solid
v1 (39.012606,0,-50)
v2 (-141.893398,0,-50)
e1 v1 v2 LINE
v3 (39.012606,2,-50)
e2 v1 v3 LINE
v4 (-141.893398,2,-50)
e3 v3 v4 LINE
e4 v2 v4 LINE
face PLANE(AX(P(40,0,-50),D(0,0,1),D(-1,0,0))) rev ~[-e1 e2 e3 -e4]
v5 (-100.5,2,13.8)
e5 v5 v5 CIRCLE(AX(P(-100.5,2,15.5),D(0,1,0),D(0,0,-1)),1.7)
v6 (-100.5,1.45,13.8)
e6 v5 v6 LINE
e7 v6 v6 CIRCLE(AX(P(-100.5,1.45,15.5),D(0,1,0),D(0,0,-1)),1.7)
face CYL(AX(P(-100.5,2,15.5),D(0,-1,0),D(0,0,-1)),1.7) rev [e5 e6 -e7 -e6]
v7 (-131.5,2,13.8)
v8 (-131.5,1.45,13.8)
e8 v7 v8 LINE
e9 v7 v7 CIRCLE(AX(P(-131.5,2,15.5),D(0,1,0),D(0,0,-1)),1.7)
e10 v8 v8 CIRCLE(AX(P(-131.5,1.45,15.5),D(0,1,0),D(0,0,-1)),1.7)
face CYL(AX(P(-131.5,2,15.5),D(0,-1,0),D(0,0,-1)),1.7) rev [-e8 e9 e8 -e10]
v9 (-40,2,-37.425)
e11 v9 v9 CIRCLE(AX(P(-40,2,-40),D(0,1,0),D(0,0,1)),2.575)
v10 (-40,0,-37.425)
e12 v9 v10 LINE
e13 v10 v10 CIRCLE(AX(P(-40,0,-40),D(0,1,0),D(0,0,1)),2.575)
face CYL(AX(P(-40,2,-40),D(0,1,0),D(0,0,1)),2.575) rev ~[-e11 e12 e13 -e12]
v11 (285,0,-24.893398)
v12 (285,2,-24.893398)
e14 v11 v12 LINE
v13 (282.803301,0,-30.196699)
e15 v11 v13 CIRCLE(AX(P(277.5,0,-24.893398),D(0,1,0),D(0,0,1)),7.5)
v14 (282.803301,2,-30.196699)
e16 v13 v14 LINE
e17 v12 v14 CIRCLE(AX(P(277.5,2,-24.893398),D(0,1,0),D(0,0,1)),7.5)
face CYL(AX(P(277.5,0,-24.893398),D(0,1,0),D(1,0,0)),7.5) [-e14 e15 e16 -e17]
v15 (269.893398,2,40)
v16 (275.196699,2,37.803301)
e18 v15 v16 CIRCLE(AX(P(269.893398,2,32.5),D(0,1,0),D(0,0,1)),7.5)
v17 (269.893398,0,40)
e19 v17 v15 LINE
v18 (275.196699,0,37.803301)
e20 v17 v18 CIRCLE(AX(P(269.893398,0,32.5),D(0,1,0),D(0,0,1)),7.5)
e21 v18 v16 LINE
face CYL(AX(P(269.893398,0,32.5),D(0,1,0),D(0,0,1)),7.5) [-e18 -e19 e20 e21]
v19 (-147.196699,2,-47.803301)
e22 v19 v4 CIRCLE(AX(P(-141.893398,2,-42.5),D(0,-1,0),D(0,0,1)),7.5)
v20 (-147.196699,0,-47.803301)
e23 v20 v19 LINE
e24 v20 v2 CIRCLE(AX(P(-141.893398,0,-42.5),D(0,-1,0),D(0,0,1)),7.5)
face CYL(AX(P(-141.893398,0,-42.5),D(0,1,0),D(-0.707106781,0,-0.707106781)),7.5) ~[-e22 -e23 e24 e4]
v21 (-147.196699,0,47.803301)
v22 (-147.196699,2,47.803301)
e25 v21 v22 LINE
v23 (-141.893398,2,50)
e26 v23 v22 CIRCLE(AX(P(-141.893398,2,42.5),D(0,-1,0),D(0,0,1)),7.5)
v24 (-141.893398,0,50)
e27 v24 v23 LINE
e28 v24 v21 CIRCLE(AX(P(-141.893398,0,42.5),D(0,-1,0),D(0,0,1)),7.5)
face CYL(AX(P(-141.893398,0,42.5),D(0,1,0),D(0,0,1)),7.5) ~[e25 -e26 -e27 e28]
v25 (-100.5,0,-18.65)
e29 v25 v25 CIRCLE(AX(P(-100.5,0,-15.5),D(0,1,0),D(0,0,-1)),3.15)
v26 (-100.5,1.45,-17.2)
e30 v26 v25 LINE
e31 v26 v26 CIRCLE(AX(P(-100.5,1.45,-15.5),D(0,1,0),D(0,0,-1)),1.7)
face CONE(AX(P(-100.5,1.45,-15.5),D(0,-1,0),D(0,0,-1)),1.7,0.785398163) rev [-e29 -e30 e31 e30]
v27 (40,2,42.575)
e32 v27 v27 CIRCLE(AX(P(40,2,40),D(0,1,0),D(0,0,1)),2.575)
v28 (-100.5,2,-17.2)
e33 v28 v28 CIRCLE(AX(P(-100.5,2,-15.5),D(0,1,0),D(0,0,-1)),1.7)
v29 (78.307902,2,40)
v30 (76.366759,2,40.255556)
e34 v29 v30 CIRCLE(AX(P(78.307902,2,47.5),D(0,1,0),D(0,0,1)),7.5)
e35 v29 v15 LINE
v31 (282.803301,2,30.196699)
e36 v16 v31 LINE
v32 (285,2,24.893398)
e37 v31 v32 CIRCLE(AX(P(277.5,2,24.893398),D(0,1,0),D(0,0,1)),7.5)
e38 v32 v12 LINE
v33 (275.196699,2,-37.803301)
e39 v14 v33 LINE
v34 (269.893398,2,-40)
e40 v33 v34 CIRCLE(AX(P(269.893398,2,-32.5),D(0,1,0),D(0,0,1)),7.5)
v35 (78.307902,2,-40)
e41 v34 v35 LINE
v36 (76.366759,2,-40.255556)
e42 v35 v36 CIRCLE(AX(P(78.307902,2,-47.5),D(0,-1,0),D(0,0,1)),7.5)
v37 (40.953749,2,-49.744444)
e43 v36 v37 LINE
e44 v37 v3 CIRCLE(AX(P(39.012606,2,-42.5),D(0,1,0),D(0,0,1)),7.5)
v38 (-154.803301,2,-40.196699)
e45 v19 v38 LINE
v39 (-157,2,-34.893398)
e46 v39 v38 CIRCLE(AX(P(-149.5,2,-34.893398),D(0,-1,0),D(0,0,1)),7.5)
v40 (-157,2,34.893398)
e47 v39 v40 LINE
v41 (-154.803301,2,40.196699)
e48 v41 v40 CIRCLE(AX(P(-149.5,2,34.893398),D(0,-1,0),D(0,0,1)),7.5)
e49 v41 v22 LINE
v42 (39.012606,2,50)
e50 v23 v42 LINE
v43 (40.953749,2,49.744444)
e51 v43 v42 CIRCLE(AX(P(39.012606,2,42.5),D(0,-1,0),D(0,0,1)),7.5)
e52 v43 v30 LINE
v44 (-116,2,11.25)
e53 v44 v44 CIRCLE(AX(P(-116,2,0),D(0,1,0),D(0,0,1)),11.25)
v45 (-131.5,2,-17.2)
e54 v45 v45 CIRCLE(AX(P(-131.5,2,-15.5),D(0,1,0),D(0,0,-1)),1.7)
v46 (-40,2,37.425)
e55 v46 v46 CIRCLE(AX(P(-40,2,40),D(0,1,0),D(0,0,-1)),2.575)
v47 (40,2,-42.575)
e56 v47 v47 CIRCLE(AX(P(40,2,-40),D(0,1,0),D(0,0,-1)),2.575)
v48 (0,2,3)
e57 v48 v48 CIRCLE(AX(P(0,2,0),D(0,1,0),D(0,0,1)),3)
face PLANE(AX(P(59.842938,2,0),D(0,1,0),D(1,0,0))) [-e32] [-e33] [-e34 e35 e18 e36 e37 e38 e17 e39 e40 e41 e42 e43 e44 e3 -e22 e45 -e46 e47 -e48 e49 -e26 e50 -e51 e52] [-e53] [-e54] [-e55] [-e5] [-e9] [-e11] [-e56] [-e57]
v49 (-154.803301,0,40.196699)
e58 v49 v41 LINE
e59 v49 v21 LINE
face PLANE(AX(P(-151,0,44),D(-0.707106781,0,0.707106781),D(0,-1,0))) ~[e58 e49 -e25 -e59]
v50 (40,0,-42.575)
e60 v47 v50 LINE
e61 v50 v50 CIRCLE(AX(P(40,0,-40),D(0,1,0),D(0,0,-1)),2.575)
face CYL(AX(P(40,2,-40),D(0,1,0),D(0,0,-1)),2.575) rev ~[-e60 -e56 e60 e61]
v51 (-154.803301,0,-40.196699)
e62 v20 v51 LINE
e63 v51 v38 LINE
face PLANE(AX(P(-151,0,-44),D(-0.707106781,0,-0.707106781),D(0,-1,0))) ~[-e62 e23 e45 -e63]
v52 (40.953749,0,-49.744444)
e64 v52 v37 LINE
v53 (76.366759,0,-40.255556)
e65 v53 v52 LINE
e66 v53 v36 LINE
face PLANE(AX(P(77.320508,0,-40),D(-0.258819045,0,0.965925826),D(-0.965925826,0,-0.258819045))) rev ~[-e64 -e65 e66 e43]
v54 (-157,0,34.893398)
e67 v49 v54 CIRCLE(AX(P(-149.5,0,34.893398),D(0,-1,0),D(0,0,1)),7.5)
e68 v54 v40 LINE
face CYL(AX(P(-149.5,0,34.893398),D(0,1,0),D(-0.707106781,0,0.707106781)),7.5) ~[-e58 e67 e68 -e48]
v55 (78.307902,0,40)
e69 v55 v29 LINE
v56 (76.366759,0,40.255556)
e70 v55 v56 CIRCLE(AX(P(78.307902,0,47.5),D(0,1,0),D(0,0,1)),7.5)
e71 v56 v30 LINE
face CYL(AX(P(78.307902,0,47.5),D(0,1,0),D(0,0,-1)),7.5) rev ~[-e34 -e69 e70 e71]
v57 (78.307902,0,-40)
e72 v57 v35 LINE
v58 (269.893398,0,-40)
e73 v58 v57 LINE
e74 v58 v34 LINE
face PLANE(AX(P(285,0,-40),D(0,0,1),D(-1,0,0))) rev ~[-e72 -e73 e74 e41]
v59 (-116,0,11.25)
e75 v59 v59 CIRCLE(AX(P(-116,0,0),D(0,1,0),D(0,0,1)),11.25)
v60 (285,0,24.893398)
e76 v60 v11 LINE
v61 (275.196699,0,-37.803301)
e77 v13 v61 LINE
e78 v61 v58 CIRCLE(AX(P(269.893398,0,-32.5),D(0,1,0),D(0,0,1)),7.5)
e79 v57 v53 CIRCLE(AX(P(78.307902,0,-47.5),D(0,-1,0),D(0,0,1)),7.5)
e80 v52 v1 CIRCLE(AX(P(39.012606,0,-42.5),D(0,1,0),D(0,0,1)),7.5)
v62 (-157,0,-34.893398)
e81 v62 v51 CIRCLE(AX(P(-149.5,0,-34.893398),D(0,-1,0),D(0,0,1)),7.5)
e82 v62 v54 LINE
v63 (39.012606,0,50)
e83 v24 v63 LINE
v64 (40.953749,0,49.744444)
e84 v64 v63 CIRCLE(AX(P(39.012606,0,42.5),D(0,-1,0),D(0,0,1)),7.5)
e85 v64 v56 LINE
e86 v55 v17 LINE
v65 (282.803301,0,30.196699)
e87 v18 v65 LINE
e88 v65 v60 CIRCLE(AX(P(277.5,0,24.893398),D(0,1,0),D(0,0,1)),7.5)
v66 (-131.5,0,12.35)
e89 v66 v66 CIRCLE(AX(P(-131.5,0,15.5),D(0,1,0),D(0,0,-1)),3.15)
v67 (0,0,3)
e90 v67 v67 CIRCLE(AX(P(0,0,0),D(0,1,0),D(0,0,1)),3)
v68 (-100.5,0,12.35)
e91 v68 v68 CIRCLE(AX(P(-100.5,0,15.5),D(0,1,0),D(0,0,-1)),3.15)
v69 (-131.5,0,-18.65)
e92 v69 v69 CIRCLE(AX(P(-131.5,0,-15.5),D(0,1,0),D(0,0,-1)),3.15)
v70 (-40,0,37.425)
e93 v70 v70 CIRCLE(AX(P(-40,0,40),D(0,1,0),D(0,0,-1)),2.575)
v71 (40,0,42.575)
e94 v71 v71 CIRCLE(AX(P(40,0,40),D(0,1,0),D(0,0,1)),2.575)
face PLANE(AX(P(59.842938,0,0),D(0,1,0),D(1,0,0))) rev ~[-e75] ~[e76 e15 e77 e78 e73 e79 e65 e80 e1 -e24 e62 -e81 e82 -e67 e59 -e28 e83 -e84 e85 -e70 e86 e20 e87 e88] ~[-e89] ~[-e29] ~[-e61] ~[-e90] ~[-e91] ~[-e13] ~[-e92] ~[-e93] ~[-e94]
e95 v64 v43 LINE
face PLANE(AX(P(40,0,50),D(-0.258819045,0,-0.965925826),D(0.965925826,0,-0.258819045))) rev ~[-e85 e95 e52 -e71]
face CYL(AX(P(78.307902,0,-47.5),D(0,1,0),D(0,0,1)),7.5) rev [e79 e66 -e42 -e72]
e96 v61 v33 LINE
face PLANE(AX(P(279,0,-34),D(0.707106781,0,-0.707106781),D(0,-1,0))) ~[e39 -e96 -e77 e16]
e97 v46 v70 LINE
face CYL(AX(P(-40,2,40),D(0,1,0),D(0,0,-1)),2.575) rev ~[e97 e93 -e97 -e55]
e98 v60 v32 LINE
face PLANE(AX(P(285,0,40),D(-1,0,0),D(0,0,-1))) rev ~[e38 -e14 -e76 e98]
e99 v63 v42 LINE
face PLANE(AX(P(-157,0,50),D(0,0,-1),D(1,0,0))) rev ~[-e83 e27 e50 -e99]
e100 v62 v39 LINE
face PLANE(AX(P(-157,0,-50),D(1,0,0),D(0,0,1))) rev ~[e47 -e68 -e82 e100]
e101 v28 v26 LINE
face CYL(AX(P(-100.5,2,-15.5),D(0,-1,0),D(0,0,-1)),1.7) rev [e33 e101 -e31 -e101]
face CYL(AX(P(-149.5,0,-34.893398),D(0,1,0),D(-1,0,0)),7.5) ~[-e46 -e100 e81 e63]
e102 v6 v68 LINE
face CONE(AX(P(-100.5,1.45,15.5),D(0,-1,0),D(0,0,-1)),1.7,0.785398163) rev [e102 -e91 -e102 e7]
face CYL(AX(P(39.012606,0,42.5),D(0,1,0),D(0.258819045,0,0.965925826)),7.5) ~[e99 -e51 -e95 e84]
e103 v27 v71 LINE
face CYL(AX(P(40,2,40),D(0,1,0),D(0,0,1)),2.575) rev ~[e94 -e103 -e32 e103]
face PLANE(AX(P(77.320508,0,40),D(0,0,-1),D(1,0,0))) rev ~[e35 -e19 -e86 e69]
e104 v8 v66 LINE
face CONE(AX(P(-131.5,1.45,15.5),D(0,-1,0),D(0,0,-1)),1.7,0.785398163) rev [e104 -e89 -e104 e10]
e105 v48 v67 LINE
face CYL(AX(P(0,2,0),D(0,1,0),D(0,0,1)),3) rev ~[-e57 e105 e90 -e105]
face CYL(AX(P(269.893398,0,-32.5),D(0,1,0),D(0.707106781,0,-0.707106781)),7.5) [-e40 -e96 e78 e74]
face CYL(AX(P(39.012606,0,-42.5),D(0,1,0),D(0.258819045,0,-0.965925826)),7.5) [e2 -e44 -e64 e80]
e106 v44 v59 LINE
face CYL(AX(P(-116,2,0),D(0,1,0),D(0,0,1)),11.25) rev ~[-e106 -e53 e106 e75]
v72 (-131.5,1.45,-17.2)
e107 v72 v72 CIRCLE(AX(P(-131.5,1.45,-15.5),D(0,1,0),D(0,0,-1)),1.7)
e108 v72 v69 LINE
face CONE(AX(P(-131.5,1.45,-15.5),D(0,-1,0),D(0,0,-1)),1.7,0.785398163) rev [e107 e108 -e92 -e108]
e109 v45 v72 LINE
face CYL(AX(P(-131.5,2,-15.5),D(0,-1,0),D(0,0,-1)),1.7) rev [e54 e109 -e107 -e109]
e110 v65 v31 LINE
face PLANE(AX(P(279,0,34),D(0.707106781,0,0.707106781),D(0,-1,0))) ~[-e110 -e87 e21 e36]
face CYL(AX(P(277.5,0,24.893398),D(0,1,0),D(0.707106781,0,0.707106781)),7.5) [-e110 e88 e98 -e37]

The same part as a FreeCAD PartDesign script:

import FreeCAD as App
import Part
import Sketcher
from FreeCAD import Vector
Q = App.Units.Quantity


def edges_at(feature, points):
    """Names of the edges that pass closest to the given points."""
    edges = feature.Shape.Edges
    near = lambda p: min(range(len(edges)), key=lambda i: edges[i].distToShape(Part.Vertex(*p))[0])
    return sorted({f"Edge{near(p) + 1}" for p in points})


def add_polygon(sketch, points):
    """Adds a closed chain of lines whose ends are joined by coincident constraints."""
    first, n = sketch.GeometryCount, len(points)
    for a, b in zip(points, points[1:] + points[:1]):
        sketch.addGeometry(Part.LineSegment(App.Vector(*a, 0), App.Vector(*b, 0)), False)
    for i in range(n):
        sketch.addConstraint(Sketcher.Constraint("Coincident", first + i, 2, first + (i + 1) % n, 1))

doc = App.newDocument("Part")
body = doc.addObject("PartDesign::Body", "Body")

# Sketch on XZ plane
sketch1 = body.newObject("Sketcher::SketchObject", "Sketch")
sketch1.AttachmentSupport = (doc.getObject("XZ_Plane"), [""])
sketch1.MapMode = "FlatFace"
add_polygon(sketch1, [(40, 50), (77, 40), (285, 40), (285, -40), (77, -40), (40, -50), (-157, -50), (-157, 50)])  # lines 0-7
sketch1.addConstraint([
    Sketcher.Constraint("Horizontal", 1),
    Sketcher.Constraint("Vertical", 2),
    Sketcher.Constraint("Horizontal", 3),
    Sketcher.Constraint("Horizontal", 5),
    Sketcher.Constraint("Vertical", 6),
    Sketcher.Constraint("Horizontal", 7),
    Sketcher.Constraint("Symmetric", 0, 2, 3, 2, -1),
    Sketcher.Constraint("Symmetric", 4, 2, 7, 2, -1),
    Sketcher.Constraint("DistanceX", 5, 2, 5, 1, 197.0),
    Sketcher.Constraint("DistanceY", 2, 2, 2, 1, 80.0),
    Sketcher.Constraint("DistanceY", 6, 1, 6, 2, 100.0),
    Sketcher.Constraint("Angle", 0, Q("-15 deg")),
    Sketcher.Constraint("DistanceX", -1, 1, 1, 2, 285.0),
    Sketcher.Constraint("DistanceX", -1, 1, 4, 2, 40.0),
])
pad1 = body.newObject("PartDesign::Pad", "Pad")
pad1.Profile = sketch1
pad1.Length = 2
pad1.Reversed = True
doc.recompute()

chamfer = body.newObject("PartDesign::Chamfer", "Chamfer")
chamfer.Base = (pad1, edges_at(pad1, [
    (-157, 1, 50),
    (-157, 1, -50),
    (285, 1, -40),
    (285, 1, 40),
]))
chamfer.Size = 12
doc.recompute()

fillet = body.newObject("PartDesign::Fillet", "Fillet")
fillet.Base = (chamfer, edges_at(chamfer, [
    (40, 1, -50),
    (77.321, 1, -40),
    (77.321, 1, 40),
    (40, 1, 50),
    (-145, 1, 50),
    (-157, 1, -38),
    (-157, 1, 38),
    (-145, 1, -50),
    (273, 1, -40),
    (285, 1, 28),
    (285, 1, -28),
    (273, 1, 40),
]))
fillet.Radius = 7.5

# Sketch on XZ plane
sketch2 = body.newObject("Sketcher::SketchObject", "Sketch001")
sketch2.AttachmentSupport = (doc.getObject("XZ_Plane"), [""])
sketch2.MapMode = "FlatFace"
sketch2.AttachmentOffset = App.Placement(Vector(0, 0, -2), App.Rotation())
sketch2.addGeometry([
    Part.Circle(Vector(-40, -40, 0), Vector(0, 0, 1), 2.6),  # 0
    Part.Circle(Vector(40, -40, 0), Vector(0, 0, 1), 2.6),  # 1
    Part.Circle(Vector(40, 40, 0), Vector(0, 0, 1), 2.6),  # 2
    Part.Circle(Vector(-40, 40, 0), Vector(0, 0, 1), 2.6),  # 3
    Part.Circle(Vector(-116, 0, 0), Vector(0, 0, 1), 11.2),  # 4
    Part.Circle(Vector(0, 0, 0), Vector(0, 0, 1), 3),  # 5
], False)
sketch2.addConstraint([
    Sketcher.Constraint("Coincident", 5, 3, -1, 1),
    Sketcher.Constraint("Equal", 0, 1),
    Sketcher.Constraint("Equal", 1, 2),
    Sketcher.Constraint("Equal", 2, 3),
    Sketcher.Constraint("Symmetric", 0, 3, 2, 3, -1, 1),
    Sketcher.Constraint("Symmetric", 1, 3, 3, 3, -1, 1),
    Sketcher.Constraint("Symmetric", 0, 3, 1, 3, -2),
    Sketcher.Constraint("PointOnObject", 4, 3, -1),
    Sketcher.Constraint("Diameter", 5, 6.0),
    Sketcher.Constraint("Diameter", 4, 22.5),
    Sketcher.Constraint("Diameter", 0, 5.15),
    Sketcher.Constraint("DistanceX", 0, 3, -1, 1, 40.0),
    Sketcher.Constraint("DistanceY", 0, 3, -1, 1, 40.0),
    Sketcher.Constraint("DistanceX", 4, 3, -1, 1, 116.0),
])
pocket1 = body.newObject("PartDesign::Pocket", "Pocket")
pocket1.Profile = sketch2
pocket1.Type = "ThroughAll"
pocket1.Reversed = True

# Sketch on YZ plane
sketch3 = body.newObject("Sketcher::SketchObject", "Sketch002")
sketch3.AttachmentSupport = (doc.getObject("YZ_Plane"), [""])
sketch3.MapMode = "FlatFace"
sketch3.AttachmentOffset = App.Placement(Vector(0, 0, -131.5), App.Rotation())
add_polygon(sketch3, [(2, -15.5), (0, -15.5), (0, -18.6), (1.4, -17.2), (2, -17.2)])  # lines 0-4
sketch3.addGeometry(Part.LineSegment(Vector(0, -15.5, 0), Vector(2, -15.5, 0)), True)  # axis
sketch3.addConstraint([
    Sketcher.Constraint("Horizontal", 0),
    Sketcher.Constraint("Vertical", 1),
    Sketcher.Constraint("Horizontal", 3),
    Sketcher.Constraint("Vertical", 4),
    Sketcher.Constraint("Horizontal", 5),
    Sketcher.Constraint("Coincident", 5, 1, 0, 2),
    Sketcher.Constraint("PointOnObject", 0, 2, -2),
    Sketcher.Constraint("Vertical", 3, 2, 5, 2),
    Sketcher.Constraint("DistanceX", 0, 2, 0, 1, 2.0),
    Sketcher.Constraint("Angle", 2, Q("45 deg")),
    Sketcher.Constraint("DistanceY", 4, 1, 4, 2, 1.7),
    Sketcher.Constraint("DistanceX", 3, 1, 3, 2, 0.55),
    Sketcher.Constraint("DistanceY", 0, 2, -1, 1, 15.5),
])
groove = body.newObject("PartDesign::Groove", "Groove")
groove.Profile = sketch3
groove.ReferenceAxis = (sketch3, ["Axis0"])
groove.Angle = 360
doc.recompute()

linearpattern = body.newObject("PartDesign::LinearPattern", "LinearPattern")
linearpattern.Originals = [groove]
linearpattern.Direction = (doc.getObject("Z_Axis"), [""])
linearpattern.Mode = "offset"
linearpattern.Offset = 31
linearpattern.Occurrences = 2
body.Tip = linearpattern
doc.recompute()

datumline = body.newObject("PartDesign::Line", "DatumLine")
datumline.Placement = App.Placement(Vector(0, 0, 0), App.Rotation(Vector(0, 0, 1), Vector(0.707106781, 0, 0.707106781)))
linearpattern2 = body.newObject("PartDesign::LinearPattern", "LinearPattern001")
linearpattern2.Originals = [groove]
linearpattern2.Direction = (datumline, [""])
linearpattern2.Mode = "offset"
linearpattern2.Offset = 43.84062
linearpattern2.Occurrences = 2
body.Tip = linearpattern2
doc.recompute()

linearpattern3 = body.newObject("PartDesign::LinearPattern", "LinearPattern002")
linearpattern3.Originals = [groove]
linearpattern3.Direction = (doc.getObject("X_Axis"), [""])
linearpattern3.Mode = "offset"
linearpattern3.Offset = 31
linearpattern3.Occurrences = 2
body.Tip = linearpattern3

doc.recompute()
